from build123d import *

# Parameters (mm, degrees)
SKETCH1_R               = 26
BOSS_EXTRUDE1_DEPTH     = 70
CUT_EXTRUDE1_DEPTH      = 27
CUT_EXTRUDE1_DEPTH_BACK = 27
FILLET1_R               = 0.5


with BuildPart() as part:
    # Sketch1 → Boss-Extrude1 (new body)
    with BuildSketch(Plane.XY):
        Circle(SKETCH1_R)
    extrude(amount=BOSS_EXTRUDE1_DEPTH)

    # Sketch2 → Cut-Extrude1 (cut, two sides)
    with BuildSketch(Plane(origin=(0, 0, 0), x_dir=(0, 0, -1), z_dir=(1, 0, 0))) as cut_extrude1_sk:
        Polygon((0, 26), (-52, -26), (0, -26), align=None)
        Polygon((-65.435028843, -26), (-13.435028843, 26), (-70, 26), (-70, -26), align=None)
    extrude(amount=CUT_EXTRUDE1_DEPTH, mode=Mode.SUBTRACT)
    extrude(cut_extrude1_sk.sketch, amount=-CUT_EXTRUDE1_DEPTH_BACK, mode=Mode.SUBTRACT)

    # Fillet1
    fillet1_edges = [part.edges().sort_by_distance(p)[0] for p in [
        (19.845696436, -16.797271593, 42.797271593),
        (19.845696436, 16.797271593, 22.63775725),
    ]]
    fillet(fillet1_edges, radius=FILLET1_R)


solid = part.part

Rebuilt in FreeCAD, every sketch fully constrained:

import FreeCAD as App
import Part
import Sketcher

V = App.Vector
Q = App.Units.Quantity


def edges_at(feature, points):
    """Names of the edges that pass closest to the given points."""
    edges = feature.Shape.Edges
    near = lambda p: min(range(len(edges)), key=lambda i: edges[i].distToShape(Part.Vertex(*p))[0])
    return sorted({f"Edge{near(p) + 1}" for p in points})

doc = App.newDocument("Part")
params = doc.addObject("Spreadsheet::Sheet", "Params")
for row, (alias, value) in enumerate([
    ("sketch1_diameter", "52 mm"),
    ("pad1_length", "70 mm"),
    ("sketch2_width", "52 mm"),
    ("fillet_radius", "0.5 mm"),
], start=1):
    params.set(f"A{row}", alias)
    params.set(f"B{row}", "=" + value)
    params.setAlias(f"B{row}", alias)

body = doc.addObject("PartDesign::Body", "Body")

# Sketch on XY plane
sketch1 = doc.addObject("Sketcher::SketchObject", "Sketch")
body.addObject(sketch1)
sketch1.AttachmentSupport = (doc.XY_Plane, [""])
sketch1.MapMode = "FlatFace"
sketch1.addGeometry(Part.Circle(V(0, 0, 0), V(0, 0, 1), 26), False)
sketch1.addConstraint([
    Sketcher.Constraint("Coincident", 0, 3, -1, 1),
    Sketcher.Constraint("Diameter", 0, Q("52 mm")),
])
sketch1.setExpression("Constraints[1]", "Params.sketch1_diameter")
pad1 = doc.addObject("PartDesign::Pad", "Pad")
body.addObject(pad1)
pad1.Profile = sketch1
pad1.setExpression("Length", "Params.pad1_length")

# Sketch on YZ plane
sketch2 = doc.addObject("Sketcher::SketchObject", "Sketch001")
body.addObject(sketch2)
sketch2.AttachmentSupport = (doc.YZ_Plane, [""])
sketch2.MapMode = "FlatFace"
sketch2.addGeometry([
    Part.LineSegment(V(26, 0, 0), V(-26, 52, 0)),  # 0
    Part.LineSegment(V(-26, 52, 0), V(-26, 0, 0)),  # 1
    Part.LineSegment(V(-26, 0, 0), V(26, 0, 0)),  # 2
    Part.LineSegment(V(-26, 65.4, 0), V(26, 13.4, 0)),  # 3
    Part.LineSegment(V(26, 13.4, 0), V(26, 70, 0)),  # 4
    Part.LineSegment(V(26, 70, 0), V(-26, 70, 0)),  # 5
    Part.LineSegment(V(-26, 70, 0), V(-26, 65.4, 0)),  # 6
], False)
sketch2.addConstraint([
    Sketcher.Constraint("Coincident", 0, 2, 1, 1),
    Sketcher.Constraint("Coincident", 1, 2, 2, 1),
    Sketcher.Constraint("Coincident", 2, 2, 0, 1),
    Sketcher.Constraint("Coincident", 3, 2, 4, 1),
    Sketcher.Constraint("Coincident", 4, 2, 5, 1),
    Sketcher.Constraint("Coincident", 5, 2, 6, 1),
    Sketcher.Constraint("Coincident", 6, 2, 3, 1),
    Sketcher.Constraint("Vertical", 1),
    Sketcher.Constraint("Horizontal", 2),
    Sketcher.Constraint("Vertical", 4),
    Sketcher.Constraint("Horizontal", 5),
    Sketcher.Constraint("Vertical", 6),
    Sketcher.Constraint("Symmetric", 1, 2, 2, 2, -1, 1),
    Sketcher.Constraint("Parallel", 0, 3),
    Sketcher.Constraint("Vertical", 2, 2, 3, 2),
    Sketcher.Constraint("Vertical", 1, 2, 5, 2),
    Sketcher.Constraint("Equal", 5, 1),
    Sketcher.Constraint("DistanceX", 2, 1, 2, 2, Q("52 mm")),
    Sketcher.Constraint("DistanceY", -1, 1, 4, 2, Q("70 mm")),
    Sketcher.Constraint("DistanceY", 4, 1, 4, 2, Q("56.564971 mm")),
])
sketch2.setExpression("Constraints[17]", "Params.sketch2_width")
pocket1 = doc.addObject("PartDesign::Pocket", "Pocket")
body.addObject(pocket1)
pocket1.Profile = sketch2
pocket1.Type = "ThroughAll"
pocket1.Midplane = True
doc.recompute()

fillet = doc.addObject("PartDesign::Fillet", "Fillet")
body.addObject(fillet)
fillet.Base = (pocket1, edges_at(pocket1, [(19.846, -16.797, 42.797), (19.846, 16.797, 22.638)]))
fillet.setExpression("Radius", "Params.fillet_radius")

doc.recompute()
